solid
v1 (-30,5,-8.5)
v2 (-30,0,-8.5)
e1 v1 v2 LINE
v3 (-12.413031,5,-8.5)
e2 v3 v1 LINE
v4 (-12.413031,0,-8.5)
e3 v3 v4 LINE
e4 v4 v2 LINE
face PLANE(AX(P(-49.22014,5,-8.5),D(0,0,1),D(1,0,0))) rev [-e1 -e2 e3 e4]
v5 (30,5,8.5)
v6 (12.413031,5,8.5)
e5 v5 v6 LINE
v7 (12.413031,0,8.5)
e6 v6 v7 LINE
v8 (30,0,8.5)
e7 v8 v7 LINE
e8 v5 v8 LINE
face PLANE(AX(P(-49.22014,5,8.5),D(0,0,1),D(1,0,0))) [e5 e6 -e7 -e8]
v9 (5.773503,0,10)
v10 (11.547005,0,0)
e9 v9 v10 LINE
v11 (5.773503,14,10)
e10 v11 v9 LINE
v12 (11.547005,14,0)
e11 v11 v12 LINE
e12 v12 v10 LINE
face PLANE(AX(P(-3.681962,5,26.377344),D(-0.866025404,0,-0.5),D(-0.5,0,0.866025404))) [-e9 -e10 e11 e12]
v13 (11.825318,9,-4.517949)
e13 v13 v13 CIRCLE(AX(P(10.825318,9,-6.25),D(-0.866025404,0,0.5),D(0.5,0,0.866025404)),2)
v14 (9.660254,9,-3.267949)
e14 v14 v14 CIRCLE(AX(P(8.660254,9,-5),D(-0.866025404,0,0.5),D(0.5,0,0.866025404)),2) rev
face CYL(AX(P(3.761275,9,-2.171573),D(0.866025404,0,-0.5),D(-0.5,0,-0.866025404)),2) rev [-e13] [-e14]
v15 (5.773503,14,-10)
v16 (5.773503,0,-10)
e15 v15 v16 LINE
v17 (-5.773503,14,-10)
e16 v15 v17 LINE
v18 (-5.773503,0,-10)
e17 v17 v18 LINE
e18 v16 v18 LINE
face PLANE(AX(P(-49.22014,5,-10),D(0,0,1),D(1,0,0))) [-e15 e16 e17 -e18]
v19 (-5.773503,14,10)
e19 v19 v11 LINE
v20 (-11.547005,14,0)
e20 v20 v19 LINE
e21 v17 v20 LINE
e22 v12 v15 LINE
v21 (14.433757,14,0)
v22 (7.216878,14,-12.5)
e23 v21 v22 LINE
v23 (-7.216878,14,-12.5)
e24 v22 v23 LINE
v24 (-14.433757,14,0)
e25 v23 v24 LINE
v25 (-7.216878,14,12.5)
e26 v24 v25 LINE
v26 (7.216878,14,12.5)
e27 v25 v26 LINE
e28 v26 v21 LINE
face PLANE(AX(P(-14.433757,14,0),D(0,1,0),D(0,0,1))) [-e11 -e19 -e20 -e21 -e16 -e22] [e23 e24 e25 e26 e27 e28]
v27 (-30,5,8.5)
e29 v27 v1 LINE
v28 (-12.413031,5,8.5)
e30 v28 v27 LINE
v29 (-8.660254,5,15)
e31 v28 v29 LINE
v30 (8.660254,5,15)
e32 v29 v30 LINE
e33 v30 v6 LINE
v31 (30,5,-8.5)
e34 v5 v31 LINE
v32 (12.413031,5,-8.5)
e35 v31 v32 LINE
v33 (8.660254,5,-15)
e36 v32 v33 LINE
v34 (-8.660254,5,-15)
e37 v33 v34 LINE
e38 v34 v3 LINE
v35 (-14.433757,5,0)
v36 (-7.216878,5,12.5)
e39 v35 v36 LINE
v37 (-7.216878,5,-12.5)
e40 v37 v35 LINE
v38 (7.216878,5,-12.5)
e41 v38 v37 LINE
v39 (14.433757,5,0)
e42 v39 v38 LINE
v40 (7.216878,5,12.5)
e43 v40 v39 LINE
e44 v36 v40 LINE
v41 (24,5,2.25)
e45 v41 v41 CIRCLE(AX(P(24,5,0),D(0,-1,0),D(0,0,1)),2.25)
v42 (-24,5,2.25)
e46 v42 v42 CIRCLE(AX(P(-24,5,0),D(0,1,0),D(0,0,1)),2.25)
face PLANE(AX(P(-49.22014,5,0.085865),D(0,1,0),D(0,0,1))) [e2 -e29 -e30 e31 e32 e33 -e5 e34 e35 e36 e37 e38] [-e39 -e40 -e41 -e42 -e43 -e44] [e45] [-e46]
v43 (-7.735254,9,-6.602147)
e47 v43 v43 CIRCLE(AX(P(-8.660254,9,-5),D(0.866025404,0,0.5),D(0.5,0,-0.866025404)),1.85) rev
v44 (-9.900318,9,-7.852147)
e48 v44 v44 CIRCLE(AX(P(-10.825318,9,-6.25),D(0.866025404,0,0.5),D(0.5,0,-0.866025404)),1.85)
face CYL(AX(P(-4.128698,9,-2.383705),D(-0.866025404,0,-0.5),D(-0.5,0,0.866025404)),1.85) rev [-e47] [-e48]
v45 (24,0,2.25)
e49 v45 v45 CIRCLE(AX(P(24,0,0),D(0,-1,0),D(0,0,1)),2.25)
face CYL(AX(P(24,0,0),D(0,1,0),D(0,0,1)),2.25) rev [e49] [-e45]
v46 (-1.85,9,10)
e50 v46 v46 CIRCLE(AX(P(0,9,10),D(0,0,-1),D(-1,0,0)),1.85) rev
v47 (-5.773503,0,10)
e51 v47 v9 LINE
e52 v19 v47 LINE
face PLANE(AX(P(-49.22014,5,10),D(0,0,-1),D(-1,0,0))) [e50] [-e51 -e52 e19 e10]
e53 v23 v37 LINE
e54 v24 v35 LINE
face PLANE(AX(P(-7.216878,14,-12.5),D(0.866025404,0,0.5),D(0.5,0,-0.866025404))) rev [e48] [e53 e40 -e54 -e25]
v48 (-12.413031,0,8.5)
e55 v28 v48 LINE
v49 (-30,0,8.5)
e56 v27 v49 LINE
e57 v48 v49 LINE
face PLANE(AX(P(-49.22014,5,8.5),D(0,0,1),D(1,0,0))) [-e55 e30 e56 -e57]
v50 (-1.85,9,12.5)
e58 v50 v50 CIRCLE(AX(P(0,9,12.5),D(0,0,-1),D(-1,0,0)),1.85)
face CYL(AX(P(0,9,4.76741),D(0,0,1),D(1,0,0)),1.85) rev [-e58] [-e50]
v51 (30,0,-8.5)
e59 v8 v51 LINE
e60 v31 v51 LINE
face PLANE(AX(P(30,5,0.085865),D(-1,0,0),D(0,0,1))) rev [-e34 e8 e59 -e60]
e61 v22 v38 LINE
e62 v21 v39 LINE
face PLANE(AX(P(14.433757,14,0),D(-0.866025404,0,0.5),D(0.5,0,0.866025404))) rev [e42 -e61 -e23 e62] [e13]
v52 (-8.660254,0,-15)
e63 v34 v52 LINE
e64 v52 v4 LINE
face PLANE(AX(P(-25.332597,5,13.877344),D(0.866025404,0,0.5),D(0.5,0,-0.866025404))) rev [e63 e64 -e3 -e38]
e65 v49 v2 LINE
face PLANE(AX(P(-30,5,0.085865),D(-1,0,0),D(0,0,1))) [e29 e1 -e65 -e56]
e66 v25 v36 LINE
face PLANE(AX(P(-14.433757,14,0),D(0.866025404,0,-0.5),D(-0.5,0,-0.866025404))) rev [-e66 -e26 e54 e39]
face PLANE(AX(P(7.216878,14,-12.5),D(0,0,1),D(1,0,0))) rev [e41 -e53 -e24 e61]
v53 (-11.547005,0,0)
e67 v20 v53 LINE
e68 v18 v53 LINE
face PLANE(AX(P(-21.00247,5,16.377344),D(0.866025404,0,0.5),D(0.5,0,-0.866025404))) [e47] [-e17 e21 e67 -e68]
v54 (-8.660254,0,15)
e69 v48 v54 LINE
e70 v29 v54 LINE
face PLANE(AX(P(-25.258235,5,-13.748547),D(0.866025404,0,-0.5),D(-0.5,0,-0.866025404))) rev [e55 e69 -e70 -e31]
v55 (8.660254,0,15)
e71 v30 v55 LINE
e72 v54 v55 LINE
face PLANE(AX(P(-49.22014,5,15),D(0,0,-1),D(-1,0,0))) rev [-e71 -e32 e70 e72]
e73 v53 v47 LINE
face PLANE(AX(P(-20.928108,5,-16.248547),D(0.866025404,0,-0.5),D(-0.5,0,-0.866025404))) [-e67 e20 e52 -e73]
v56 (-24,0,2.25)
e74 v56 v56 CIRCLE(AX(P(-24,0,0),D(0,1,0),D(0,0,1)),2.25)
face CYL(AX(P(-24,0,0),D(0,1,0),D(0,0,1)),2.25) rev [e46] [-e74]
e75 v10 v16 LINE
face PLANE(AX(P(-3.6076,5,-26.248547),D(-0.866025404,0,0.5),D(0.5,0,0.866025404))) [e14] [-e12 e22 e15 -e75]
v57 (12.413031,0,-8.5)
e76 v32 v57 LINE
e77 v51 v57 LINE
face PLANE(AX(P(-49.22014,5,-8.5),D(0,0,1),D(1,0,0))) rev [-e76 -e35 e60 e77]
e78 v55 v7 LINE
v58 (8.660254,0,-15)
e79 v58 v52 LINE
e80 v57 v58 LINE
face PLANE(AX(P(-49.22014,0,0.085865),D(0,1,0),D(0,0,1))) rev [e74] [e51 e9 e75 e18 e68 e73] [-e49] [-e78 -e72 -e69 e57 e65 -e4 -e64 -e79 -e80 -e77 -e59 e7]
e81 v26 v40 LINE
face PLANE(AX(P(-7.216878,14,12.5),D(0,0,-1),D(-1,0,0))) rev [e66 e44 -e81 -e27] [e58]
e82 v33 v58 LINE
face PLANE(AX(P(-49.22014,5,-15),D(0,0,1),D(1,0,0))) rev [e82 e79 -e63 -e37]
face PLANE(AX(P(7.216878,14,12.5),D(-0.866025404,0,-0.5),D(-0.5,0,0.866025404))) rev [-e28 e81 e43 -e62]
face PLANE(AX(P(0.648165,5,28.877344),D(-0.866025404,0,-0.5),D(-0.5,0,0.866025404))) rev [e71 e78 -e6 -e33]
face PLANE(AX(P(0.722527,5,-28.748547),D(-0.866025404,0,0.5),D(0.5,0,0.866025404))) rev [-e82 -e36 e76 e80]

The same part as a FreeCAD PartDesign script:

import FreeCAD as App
import Part
import Sketcher
Q = App.Units.Quantity

doc = App.newDocument("Part")
body = doc.addObject("PartDesign::Body", "Body")

sketch1 = body.newObject("Sketcher::SketchObject", "Sketch")
sketch1.AttachmentSupport = (doc.getObject("XZ_Plane"), [""])
sketch1.MapMode = "FlatFace"
sketch1.addGeometry(Part.LineSegment(App.Vector(-30, 8, 0), App.Vector(-12, 8, 0)), False)
sketch1.addGeometry(Part.LineSegment(App.Vector(-12, 8, 0), App.Vector(-9, 15, 0)), False)
sketch1.addGeometry(Part.LineSegment(App.Vector(-9, 15, 0), App.Vector(9, 15, 0)), False)
sketch1.addGeometry(Part.LineSegment(App.Vector(9, 15, 0), App.Vector(12, 8, 0)), False)
sketch1.addGeometry(Part.LineSegment(App.Vector(12, 8, 0), App.Vector(30, 8, 0)), False)
sketch1.addGeometry(Part.LineSegment(App.Vector(30, 8, 0), App.Vector(30, -8, 0)), False)
sketch1.addGeometry(Part.LineSegment(App.Vector(30, -8, 0), App.Vector(12, -8, 0)), False)
sketch1.addGeometry(Part.LineSegment(App.Vector(12, -8, 0), App.Vector(9, -15, 0)), False)
sketch1.addGeometry(Part.LineSegment(App.Vector(9, -15, 0), App.Vector(-9, -15, 0)), False)
sketch1.addGeometry(Part.LineSegment(App.Vector(-9, -15, 0), App.Vector(-12, -8, 0)), False)
sketch1.addGeometry(Part.LineSegment(App.Vector(-12, -8, 0), App.Vector(-30, -8, 0)), False)
sketch1.addGeometry(Part.LineSegment(App.Vector(-30, -8, 0), App.Vector(-30, 8, 0)), False)
sketch1.addGeometry(Part.LineSegment(App.Vector(6, 10, 0), App.Vector(-6, 10, 0)), False)
sketch1.addGeometry(Part.LineSegment(App.Vector(-6, 10, 0), App.Vector(-12, 0, 0)), False)
sketch1.addGeometry(Part.LineSegment(App.Vector(-12, 0, 0), App.Vector(-6, -10, 0)), False)
sketch1.addGeometry(Part.LineSegment(App.Vector(-6, -10, 0), App.Vector(6, -10, 0)), False)
sketch1.addGeometry(Part.LineSegment(App.Vector(6, -10, 0), App.Vector(12, 0, 0)), False)
sketch1.addGeometry(Part.LineSegment(App.Vector(12, 0, 0), App.Vector(6, 10, 0)), False)
sketch1.addConstraint(Sketcher.Constraint("Coincident", 0, 2, 1, 1))
sketch1.addConstraint(Sketcher.Constraint("Coincident", 1, 2, 2, 1))
sketch1.addConstraint(Sketcher.Constraint("Coincident", 2, 2, 3, 1))
sketch1.addConstraint(Sketcher.Constraint("Coincident", 3, 2, 4, 1))
sketch1.addConstraint(Sketcher.Constraint("Coincident", 4, 2, 5, 1))
sketch1.addConstraint(Sketcher.Constraint("Coincident", 5, 2, 6, 1))
sketch1.addConstraint(Sketcher.Constraint("Coincident", 6, 2, 7, 1))
sketch1.addConstraint(Sketcher.Constraint("Coincident", 7, 2, 8, 1))
sketch1.addConstraint(Sketcher.Constraint("Coincident", 8, 2, 9, 1))
sketch1.addConstraint(Sketcher.Constraint("Coincident", 9, 2, 10, 1))
sketch1.addConstraint(Sketcher.Constraint("Coincident", 10, 2, 11, 1))
sketch1.addConstraint(Sketcher.Constraint("Coincident", 11, 2, 0, 1))
sketch1.addConstraint(Sketcher.Constraint("Coincident", 12, 2, 13, 1))
sketch1.addConstraint(Sketcher.Constraint("Coincident", 13, 2, 14, 1))
sketch1.addConstraint(Sketcher.Constraint("Coincident", 14, 2, 15, 1))
sketch1.addConstraint(Sketcher.Constraint("Coincident", 15, 2, 16, 1))
sketch1.addConstraint(Sketcher.Constraint("Coincident", 16, 2, 17, 1))
sketch1.addConstraint(Sketcher.Constraint("Coincident", 17, 2, 12, 1))
sketch1.addConstraint(Sketcher.Constraint("Horizontal", 0))
sketch1.addConstraint(Sketcher.Constraint("Horizontal", 2))
sketch1.addConstraint(Sketcher.Constraint("Horizontal", 4))
sketch1.addConstraint(Sketcher.Constraint("Vertical", 5))
sketch1.addConstraint(Sketcher.Constraint("Horizontal", 6))
sketch1.addConstraint(Sketcher.Constraint("Horizontal", 8))
sketch1.addConstraint(Sketcher.Constraint("Horizontal", 10))
sketch1.addConstraint(Sketcher.Constraint("Vertical", 11))
sketch1.addConstraint(Sketcher.Constraint("Horizontal", 12))
sketch1.addConstraint(Sketcher.Constraint("Horizontal", 15))
sketch1.addConstraint(Sketcher.Constraint("Symmetric", 0, 2, 6, 2, -1, 1))
sketch1.addConstraint(Sketcher.Constraint("Symmetric", 1, 2, 7, 2, -1, 1))
sketch1.addConstraint(Sketcher.Constraint("Symmetric", 3, 2, 9, 2, -1, 1))
sketch1.addConstraint(Sketcher.Constraint("Symmetric", 12, 2, 15, 2, -1, 1))
sketch1.addConstraint(Sketcher.Constraint("Symmetric", 13, 2, 16, 2, -1, 1))
sketch1.addConstraint(Sketcher.Constraint("Symmetric", 0, 2, 3, 2, -2))
sketch1.addConstraint(Sketcher.Constraint("PointOnObject", 13, 2, -1))
sketch1.addConstraint(Sketcher.Constraint("Parallel", 3, 9))
sketch1.addConstraint(Sketcher.Constraint("Parallel", 7, 13))
sketch1.addConstraint(Sketcher.Constraint("Parallel", 9, 14))
sketch1.addConstraint(Sketcher.Constraint("Parallel", 14, 17))
sketch1.addConstraint(Sketcher.Constraint("Vertical", 2, 2, 7, 2))
sketch1.addConstraint(Sketcher.Constraint("Equal", 0, 4))
sketch1.addConstraint(Sketcher.Constraint("DistanceY", 5, 2, 5, 1, Q("17 mm")))
sketch1.addConstraint(Sketcher.Constraint("Angle", 1, Q("60 deg")))
sketch1.addConstraint(Sketcher.Constraint("DistanceY", -1, 1, 1, 2, Q("15 mm")))
sketch1.addConstraint(Sketcher.Constraint("DistanceX", -1, 1, 4, 2, Q("30 mm")))
sketch1.addConstraint(Sketcher.Constraint("DistanceY", -1, 1, 12, 2, Q("10 mm")))
sketch1.addConstraint(Sketcher.Constraint("DistanceX", 0, 1, 0, 2, Q("17.586969 mm")))
sketch1.addConstraint(Sketcher.Constraint("DistanceX", 12, 2, 12, 1, Q("11.547005 mm")))
pad1 = body.newObject("PartDesign::Pad", "Pad")
pad1.Profile = sketch1
pad1.Length = 5
pad1.Reversed = True

sketch2 = body.newObject("Sketcher::SketchObject", "Sketch001")
sketch2.AttachmentSupport = (doc.getObject("XZ_Plane"), [""])
sketch2.MapMode = "FlatFace"
sketch2.AttachmentOffset = App.Placement(App.Vector(0, 0, -5), App.Rotation())
sketch2.addGeometry(Part.LineSegment(App.Vector(-14, 0, 0), App.Vector(-7, 12, 0)), False)
sketch2.addGeometry(Part.LineSegment(App.Vector(-7, 12, 0), App.Vector(7, 12, 0)), False)
sketch2.addGeometry(Part.LineSegment(App.Vector(7, 12, 0), App.Vector(14, 0, 0)), False)
sketch2.addGeometry(Part.LineSegment(App.Vector(14, 0, 0), App.Vector(7, -12, 0)), False)
sketch2.addGeometry(Part.LineSegment(App.Vector(7, -12, 0), App.Vector(-7, -12, 0)), False)
sketch2.addGeometry(Part.LineSegment(App.Vector(-7, -12, 0), App.Vector(-14, 0, 0)), False)
sketch2.addGeometry(Part.LineSegment(App.Vector(-6, 10, 0), App.Vector(-12, 0, 0)), False)
sketch2.addGeometry(Part.LineSegment(App.Vector(-12, 0, 0), App.Vector(-6, -10, 0)), False)
sketch2.addGeometry(Part.LineSegment(App.Vector(-6, -10, 0), App.Vector(6, -10, 0)), False)
sketch2.addGeometry(Part.LineSegment(App.Vector(6, -10, 0), App.Vector(12, 0, 0)), False)
sketch2.addGeometry(Part.LineSegment(App.Vector(12, 0, 0), App.Vector(6, 10, 0)), False)
sketch2.addGeometry(Part.LineSegment(App.Vector(6, 10, 0), App.Vector(-6, 10, 0)), False)
sketch2.addConstraint(Sketcher.Constraint("Coincident", 0, 2, 1, 1))
sketch2.addConstraint(Sketcher.Constraint("Coincident", 1, 2, 2, 1))
sketch2.addConstraint(Sketcher.Constraint("Coincident", 2, 2, 3, 1))
sketch2.addConstraint(Sketcher.Constraint("Coincident", 3, 2, 4, 1))
sketch2.addConstraint(Sketcher.Constraint("Coincident", 4, 2, 5, 1))
sketch2.addConstraint(Sketcher.Constraint("Coincident", 5, 2, 0, 1))
sketch2.addConstraint(Sketcher.Constraint("Coincident", 6, 2, 7, 1))
sketch2.addConstraint(Sketcher.Constraint("Coincident", 7, 2, 8, 1))
sketch2.addConstraint(Sketcher.Constraint("Coincident", 8, 2, 9, 1))
sketch2.addConstraint(Sketcher.Constraint("Coincident", 9, 2, 10, 1))
sketch2.addConstraint(Sketcher.Constraint("Coincident", 10, 2, 11, 1))
sketch2.addConstraint(Sketcher.Constraint("Coincident", 11, 2, 6, 1))
sketch2.addConstraint(Sketcher.Constraint("Horizontal", 1))
sketch2.addConstraint(Sketcher.Constraint("Horizontal", 4))
sketch2.addConstraint(Sketcher.Constraint("Horizontal", 8))
sketch2.addConstraint(Sketcher.Constraint("Horizontal", 11))
sketch2.addConstraint(Sketcher.Constraint("Symmetric", 0, 2, 3, 2, -1, 1))
sketch2.addConstraint(Sketcher.Constraint("Symmetric", 2, 2, 5, 2, -1, 1))
sketch2.addConstraint(Sketcher.Constraint("Symmetric", 6, 2, 9, 2, -1, 1))
sketch2.addConstraint(Sketcher.Constraint("Symmetric", 7, 2, 10, 2, -1, 1))
sketch2.addConstraint(Sketcher.Constraint("PointOnObject", 2, 2, -1))
sketch2.addConstraint(Sketcher.Constraint("PointOnObject", 6, 2, -1))
sketch2.addConstraint(Sketcher.Constraint("Parallel", 2, 5))
sketch2.addConstraint(Sketcher.Constraint("Parallel", 3, 6))
sketch2.addConstraint(Sketcher.Constraint("Parallel", 5, 7))
sketch2.addConstraint(Sketcher.Constraint("Parallel", 6, 9))
sketch2.addConstraint(Sketcher.Constraint("Vertical", 1, 2, 3, 2))
sketch2.addConstraint(Sketcher.Constraint("Angle", 0, Q("60 deg")))
sketch2.addConstraint(Sketcher.Constraint("DistanceY", 7, 2, -1, 1, Q("10 mm")))
sketch2.addConstraint(Sketcher.Constraint("DistanceY", 3, 2, 1, 2, Q("25 mm")))
sketch2.addConstraint(Sketcher.Constraint("DistanceX", 1, 1, 1, 2, Q("14.433757 mm")))
sketch2.addConstraint(Sketcher.Constraint("DistanceX", 8, 1, 8, 2, Q("11.547005 mm")))
pad2 = body.newObject("PartDesign::Pad", "Pad001")
pad2.Profile = sketch2
pad2.Length = 9
pad2.Reversed = True

sketch3 = body.newObject("Sketcher::SketchObject", "Sketch002")
sketch3.AttachmentSupport = (doc.getObject("XZ_Plane"), [""])
sketch3.MapMode = "FlatFace"
sketch3.AttachmentOffset = App.Placement(App.Vector(0, 0, -5), App.Rotation())
sketch3.addGeometry(Part.Circle(App.Vector(-24, 0, 0), App.Vector(0, 0, 1), 2.2), False)
sketch3.addConstraint(Sketcher.Constraint("PointOnObject", 0, 3, -1))
sketch3.addConstraint(Sketcher.Constraint("Diameter", 0, Q("4.5 mm")))
sketch3.addConstraint(Sketcher.Constraint("DistanceX", 0, 3, -1, 1, Q("24 mm")))
pocket1 = body.newObject("PartDesign::Pocket", "Pocket")
pocket1.Profile = sketch3
pocket1.Type = "ThroughAll"
pocket1.Reversed = True
doc.recompute()

mirrored = body.newObject("PartDesign::Mirrored", "Mirrored")
mirrored.Originals = [pocket1]
mirrored.MirrorPlane = (doc.getObject("YZ_Plane"), [""])
body.Tip = mirrored

sketch4 = body.newObject("Sketcher::SketchObject", "Sketch003")
sketch4.AttachmentSupport = (doc.getObject("XY_Plane"), [""])
sketch4.MapMode = "FlatFace"
sketch4.AttachmentOffset = App.Placement(App.Vector(0, 0, 15), App.Rotation())
sketch4.addGeometry(Part.Circle(App.Vector(0, 9, 0), App.Vector(0, 0, 1), 1.9), False)
sketch4.addConstraint(Sketcher.Constraint("PointOnObject", 0, 3, -2))
sketch4.addConstraint(Sketcher.Constraint("Diameter", 0, Q("3.7 mm")))
sketch4.addConstraint(Sketcher.Constraint("DistanceY", -1, 1, 0, 3, Q("9 mm")))
pocket2 = body.newObject("PartDesign::Pocket", "Pocket001")
pocket2.Profile = sketch4
pocket2.Length = 5

sketch5 = body.newObject("Sketcher::SketchObject", "Sketch004")
sketch5.Placement = App.Placement(App.Vector(12.990381, 0, -7.5), App.Rotation(App.Vector(-0.5, 0, -0.866025404), App.Vector(0, 1, 0), App.Vector(0.866025404, 0, -0.5), "ZXY"))
sketch5.addGeometry(Part.Circle(App.Vector(0, 9, 0), App.Vector(0, 0, 1), 2), False)
sketch5.addConstraint(Sketcher.Constraint("PointOnObject", 0, 3, -2))
sketch5.addConstraint(Sketcher.Constraint("Diameter", 0, Q("4 mm")))
sketch5.addConstraint(Sketcher.Constraint("DistanceY", -1, 1, 0, 3, Q("9 mm")))
pocket3 = body.newObject("PartDesign::Pocket", "Pocket002")
pocket3.Profile = sketch5
pocket3.Length = 5

sketch6 = body.newObject("Sketcher::SketchObject", "Sketch005")
sketch6.Placement = App.Placement(App.Vector(-12.990381, 0, -7.5), App.Rotation(App.Vector(-0.5, 0, 0.866025404), App.Vector(0, 1, 0), App.Vector(-0.866025404, 0, -0.5), "ZXY"))
sketch6.addGeometry(Part.Circle(App.Vector(0, 9, 0), App.Vector(0, 0, 1), 1.9), False)
sketch6.addConstraint(Sketcher.Constraint("PointOnObject", 0, 3, -2))
sketch6.addConstraint(Sketcher.Constraint("Diameter", 0, Q("3.7 mm")))
sketch6.addConstraint(Sketcher.Constraint("DistanceY", -1, 1, 0, 3, Q("9 mm")))
pocket4 = body.newObject("PartDesign::Pocket", "Pocket003")
pocket4.Profile = sketch6
pocket4.Length = 5

doc.recompute()
